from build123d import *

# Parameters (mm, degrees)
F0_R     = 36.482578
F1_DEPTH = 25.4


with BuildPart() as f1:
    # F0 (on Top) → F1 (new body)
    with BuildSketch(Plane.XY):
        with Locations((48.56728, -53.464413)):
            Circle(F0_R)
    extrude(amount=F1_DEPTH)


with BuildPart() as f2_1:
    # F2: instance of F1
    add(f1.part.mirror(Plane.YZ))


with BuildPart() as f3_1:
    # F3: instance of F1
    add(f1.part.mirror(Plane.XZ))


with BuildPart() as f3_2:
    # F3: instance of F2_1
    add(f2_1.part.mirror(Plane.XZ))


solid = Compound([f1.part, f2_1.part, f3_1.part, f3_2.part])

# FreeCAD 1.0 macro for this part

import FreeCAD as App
import Part
import Sketcher

V = App.Vector
Q = App.Units.Quantity

doc = App.newDocument("Part")
body = doc.addObject("PartDesign::Body", "Body")

sketch1 = body.newObject("Sketcher::SketchObject", "Sketch")
sketch1.AttachmentSupport = (doc.getObject("XY_Plane"), [""])
sketch1.MapMode = "FlatFace"
sketch1.addGeometry(Part.Circle(V(48.56728, -53.464413, 0), V(0, 0, 1), 36.482578), False)
sketch1.addConstraint([
    Sketcher.Constraint("Diameter", 0, 72.965156),
    Sketcher.Constraint("DistanceX", -1, 1, 0, 3, 48.56728),
    Sketcher.Constraint("DistanceY", 0, 3, -1, 1, 53.464413),
])
pad1 = body.newObject("PartDesign::Pad", "Pad")
pad1.Profile = sketch1
pad1.Length = Q("1 in")
body2 = doc.addObject("PartDesign::Body", "Body001")
doc.recompute()

mirroring = doc.addObject("Part::Mirroring", "Mirroring")
mirroring.Source = body
mirroring.Base = V(0, 0, 0)
mirroring.Normal = V(1, 0, 0)
body2.BaseFeature = mirroring
doc.recompute()
body3 = doc.addObject("PartDesign::Body", "Body002")
doc.recompute()

mirroring2 = doc.addObject("Part::Mirroring", "Mirroring001")
mirroring2.Source = body
mirroring2.Base = V(0, 0, 0)
mirroring2.Normal = V(0, -1, 0)
body3.BaseFeature = mirroring2
doc.recompute()
body4 = doc.addObject("PartDesign::Body", "Body003")
doc.recompute()

mirroring3 = doc.addObject("Part::Mirroring", "Mirroring002")
mirroring3.Source = body2
mirroring3.Base = V(0, 0, 0)
mirroring3.Normal = V(0, -1, 0)
body4.BaseFeature = mirroring3
doc.recompute()
mirroring.Visibility = False
mirroring2.Visibility = False
mirroring3.Visibility = False

doc.recompute()
